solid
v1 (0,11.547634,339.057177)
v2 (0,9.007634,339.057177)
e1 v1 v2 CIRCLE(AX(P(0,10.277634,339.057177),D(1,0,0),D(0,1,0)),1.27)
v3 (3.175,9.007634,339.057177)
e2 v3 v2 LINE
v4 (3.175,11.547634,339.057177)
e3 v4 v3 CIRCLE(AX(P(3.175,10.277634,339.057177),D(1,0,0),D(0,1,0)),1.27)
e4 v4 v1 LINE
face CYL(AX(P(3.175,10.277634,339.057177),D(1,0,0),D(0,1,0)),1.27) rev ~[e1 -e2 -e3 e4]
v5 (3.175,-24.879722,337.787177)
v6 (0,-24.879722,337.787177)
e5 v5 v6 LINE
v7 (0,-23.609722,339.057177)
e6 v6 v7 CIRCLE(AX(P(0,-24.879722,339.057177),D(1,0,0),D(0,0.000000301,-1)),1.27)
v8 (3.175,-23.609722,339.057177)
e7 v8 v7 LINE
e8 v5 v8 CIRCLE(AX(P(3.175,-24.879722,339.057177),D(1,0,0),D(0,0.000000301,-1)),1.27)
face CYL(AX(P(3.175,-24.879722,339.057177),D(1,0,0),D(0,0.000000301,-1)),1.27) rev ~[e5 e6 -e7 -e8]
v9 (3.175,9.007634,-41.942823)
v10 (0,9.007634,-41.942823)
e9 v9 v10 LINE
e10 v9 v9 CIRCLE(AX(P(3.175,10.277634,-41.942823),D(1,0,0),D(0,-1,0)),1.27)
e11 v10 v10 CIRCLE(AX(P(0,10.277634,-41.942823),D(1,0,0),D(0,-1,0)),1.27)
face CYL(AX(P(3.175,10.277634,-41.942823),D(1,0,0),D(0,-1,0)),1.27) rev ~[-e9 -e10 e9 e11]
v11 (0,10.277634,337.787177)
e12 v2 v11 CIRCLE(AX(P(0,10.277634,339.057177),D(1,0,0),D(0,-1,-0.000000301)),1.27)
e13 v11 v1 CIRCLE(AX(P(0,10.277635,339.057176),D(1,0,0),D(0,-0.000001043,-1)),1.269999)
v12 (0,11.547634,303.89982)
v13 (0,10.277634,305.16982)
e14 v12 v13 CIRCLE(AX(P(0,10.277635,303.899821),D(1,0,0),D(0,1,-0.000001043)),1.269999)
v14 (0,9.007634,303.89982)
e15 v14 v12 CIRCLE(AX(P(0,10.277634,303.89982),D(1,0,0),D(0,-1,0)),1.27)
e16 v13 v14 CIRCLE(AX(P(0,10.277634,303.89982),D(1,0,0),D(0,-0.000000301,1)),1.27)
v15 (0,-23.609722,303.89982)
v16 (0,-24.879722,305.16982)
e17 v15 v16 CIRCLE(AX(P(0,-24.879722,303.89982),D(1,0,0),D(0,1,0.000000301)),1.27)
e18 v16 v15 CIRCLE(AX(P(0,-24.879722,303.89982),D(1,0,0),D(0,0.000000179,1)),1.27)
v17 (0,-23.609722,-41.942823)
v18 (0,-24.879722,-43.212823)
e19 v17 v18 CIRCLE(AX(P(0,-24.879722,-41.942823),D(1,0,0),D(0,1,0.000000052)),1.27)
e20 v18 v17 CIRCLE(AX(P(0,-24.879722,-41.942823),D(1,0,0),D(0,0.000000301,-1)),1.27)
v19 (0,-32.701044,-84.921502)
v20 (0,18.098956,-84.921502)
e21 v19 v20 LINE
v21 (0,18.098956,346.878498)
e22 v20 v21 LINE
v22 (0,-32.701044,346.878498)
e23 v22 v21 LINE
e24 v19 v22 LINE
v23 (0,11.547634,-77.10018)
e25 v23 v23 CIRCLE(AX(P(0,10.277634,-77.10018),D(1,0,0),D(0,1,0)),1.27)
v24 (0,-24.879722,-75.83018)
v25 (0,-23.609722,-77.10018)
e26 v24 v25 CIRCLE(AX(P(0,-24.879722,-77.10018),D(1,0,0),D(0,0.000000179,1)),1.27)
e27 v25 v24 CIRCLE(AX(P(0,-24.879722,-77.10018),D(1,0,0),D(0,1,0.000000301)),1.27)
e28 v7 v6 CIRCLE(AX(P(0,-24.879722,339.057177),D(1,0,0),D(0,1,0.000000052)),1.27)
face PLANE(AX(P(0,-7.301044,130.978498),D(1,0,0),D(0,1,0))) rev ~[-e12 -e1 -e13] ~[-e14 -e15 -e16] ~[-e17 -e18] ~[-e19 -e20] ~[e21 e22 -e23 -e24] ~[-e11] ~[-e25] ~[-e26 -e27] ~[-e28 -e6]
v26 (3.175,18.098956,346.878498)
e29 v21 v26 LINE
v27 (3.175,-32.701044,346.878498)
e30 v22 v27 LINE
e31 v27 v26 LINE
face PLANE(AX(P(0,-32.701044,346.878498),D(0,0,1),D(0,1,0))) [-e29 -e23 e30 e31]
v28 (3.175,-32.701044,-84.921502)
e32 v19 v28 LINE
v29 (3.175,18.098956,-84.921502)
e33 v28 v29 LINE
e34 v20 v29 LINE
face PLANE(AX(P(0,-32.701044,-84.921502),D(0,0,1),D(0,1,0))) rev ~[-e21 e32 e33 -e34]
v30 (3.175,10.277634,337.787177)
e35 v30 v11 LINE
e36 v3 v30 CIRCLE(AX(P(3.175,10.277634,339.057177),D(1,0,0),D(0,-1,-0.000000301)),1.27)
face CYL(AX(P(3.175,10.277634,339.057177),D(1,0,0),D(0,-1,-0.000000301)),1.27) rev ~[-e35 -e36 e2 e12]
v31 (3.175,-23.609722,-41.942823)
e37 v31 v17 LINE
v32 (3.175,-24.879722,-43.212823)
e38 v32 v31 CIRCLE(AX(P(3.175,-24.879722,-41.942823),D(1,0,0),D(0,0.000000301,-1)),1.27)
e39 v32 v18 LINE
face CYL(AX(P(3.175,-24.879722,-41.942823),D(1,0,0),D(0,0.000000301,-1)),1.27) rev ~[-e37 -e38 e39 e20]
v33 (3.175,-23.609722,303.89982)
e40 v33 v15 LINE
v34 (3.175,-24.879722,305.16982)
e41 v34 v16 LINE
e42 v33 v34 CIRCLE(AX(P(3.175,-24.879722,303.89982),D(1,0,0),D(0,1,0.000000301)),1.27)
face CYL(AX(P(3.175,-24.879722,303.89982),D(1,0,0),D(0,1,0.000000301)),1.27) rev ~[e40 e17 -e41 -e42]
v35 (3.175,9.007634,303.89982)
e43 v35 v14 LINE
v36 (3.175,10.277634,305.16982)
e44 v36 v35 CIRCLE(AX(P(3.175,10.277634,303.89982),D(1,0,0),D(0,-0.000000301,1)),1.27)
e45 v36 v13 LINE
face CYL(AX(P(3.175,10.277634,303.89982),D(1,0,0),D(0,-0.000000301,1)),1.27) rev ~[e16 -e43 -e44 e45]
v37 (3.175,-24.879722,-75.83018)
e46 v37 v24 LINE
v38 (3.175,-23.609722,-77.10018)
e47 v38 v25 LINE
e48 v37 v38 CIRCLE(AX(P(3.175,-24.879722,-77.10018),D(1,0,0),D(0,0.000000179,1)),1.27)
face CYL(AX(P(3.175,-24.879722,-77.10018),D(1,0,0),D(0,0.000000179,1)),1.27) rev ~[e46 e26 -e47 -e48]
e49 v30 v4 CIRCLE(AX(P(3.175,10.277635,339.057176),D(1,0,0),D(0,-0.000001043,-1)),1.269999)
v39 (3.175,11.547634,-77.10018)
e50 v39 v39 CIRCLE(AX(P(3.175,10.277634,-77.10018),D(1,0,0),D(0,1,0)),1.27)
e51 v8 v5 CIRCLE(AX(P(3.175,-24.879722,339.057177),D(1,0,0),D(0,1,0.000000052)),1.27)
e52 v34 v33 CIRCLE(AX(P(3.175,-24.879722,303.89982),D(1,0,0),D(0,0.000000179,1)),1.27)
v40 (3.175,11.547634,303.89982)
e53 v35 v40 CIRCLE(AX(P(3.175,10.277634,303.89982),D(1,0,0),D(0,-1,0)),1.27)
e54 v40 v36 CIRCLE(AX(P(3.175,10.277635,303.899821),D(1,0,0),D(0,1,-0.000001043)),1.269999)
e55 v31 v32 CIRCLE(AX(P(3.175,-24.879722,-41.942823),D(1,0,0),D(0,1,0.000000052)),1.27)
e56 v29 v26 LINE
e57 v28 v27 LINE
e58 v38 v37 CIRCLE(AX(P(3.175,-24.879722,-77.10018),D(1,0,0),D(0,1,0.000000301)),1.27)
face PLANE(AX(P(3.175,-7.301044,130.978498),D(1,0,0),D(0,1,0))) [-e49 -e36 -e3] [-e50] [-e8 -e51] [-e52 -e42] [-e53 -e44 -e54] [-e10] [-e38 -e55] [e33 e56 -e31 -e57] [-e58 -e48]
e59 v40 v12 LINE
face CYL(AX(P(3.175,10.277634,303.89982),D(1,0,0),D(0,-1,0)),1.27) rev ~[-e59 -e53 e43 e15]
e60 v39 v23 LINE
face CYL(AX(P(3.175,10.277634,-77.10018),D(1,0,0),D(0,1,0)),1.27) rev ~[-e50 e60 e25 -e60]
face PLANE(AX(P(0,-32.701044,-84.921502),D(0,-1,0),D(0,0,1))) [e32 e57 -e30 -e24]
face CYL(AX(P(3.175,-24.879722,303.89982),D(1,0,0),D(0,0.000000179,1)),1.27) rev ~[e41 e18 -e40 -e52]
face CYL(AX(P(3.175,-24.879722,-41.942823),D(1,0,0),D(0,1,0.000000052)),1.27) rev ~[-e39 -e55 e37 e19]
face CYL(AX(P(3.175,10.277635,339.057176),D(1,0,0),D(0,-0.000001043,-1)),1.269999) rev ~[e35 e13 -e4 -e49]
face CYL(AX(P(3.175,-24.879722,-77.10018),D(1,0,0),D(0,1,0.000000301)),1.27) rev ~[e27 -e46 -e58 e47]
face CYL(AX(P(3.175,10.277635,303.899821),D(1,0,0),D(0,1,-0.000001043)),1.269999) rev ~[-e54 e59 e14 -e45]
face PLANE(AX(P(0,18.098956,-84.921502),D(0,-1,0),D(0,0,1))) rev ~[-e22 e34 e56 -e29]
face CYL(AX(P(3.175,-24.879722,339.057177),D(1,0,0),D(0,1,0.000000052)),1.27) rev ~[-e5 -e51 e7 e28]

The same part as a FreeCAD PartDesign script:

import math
import FreeCAD as App
import Part
import Sketcher
from FreeCAD import Vector
Q = App.Units.Quantity

doc = App.newDocument("Part")
params = doc.addObject("Spreadsheet::Sheet", "Params")
for row, (alias, value) in enumerate([
    ("sketch1_width", "2 in"),
    ("sketch1_height", "17 in"),
    ("pad1_length", "0.125 in"),
    ("sketch2_diameter", "0.1 in"),
], start=1):
    params.set(f"A{row}", alias)
    params.set(f"B{row}", "=" + value)
    params.setAlias(f"B{row}", alias)

body = doc.addObject("PartDesign::Body", "Body")

# Sketch on YZ plane
sketch1 = doc.addObject("Sketcher::SketchObject", "Sketch")
body.addObject(sketch1)
sketch1.AttachmentSupport = (doc.YZ_Plane, [""])
sketch1.MapMode = "FlatFace"
sketch1.addGeometry([
    Part.LineSegment(Vector(-32.701044, 346.878498, 0), Vector(-32.701044, -84.921502, 0)),
    Part.LineSegment(Vector(-32.701044, -84.921502, 0), Vector(18.098956, -84.921502, 0)),
    Part.LineSegment(Vector(18.098956, -84.921502, 0), Vector(18.098956, 346.878498, 0)),
    Part.LineSegment(Vector(18.098956, 346.878498, 0), Vector(-32.701044, 346.878498, 0)),
], False)
sketch1.addConstraint([
    Sketcher.Constraint("Coincident", 0, 2, 1, 1),
    Sketcher.Constraint("Coincident", 1, 2, 2, 1),
    Sketcher.Constraint("Coincident", 2, 2, 3, 1),
    Sketcher.Constraint("Coincident", 3, 2, 0, 1),
    Sketcher.Constraint("Vertical", 0),
    Sketcher.Constraint("Horizontal", 1),
    Sketcher.Constraint("Vertical", 2),
    Sketcher.Constraint("Horizontal", 3),
    Sketcher.Constraint("DistanceX", 1, 1, 1, 2, Q("2 in")),
    Sketcher.Constraint("DistanceY", 0, 2, 0, 1, Q("17 in")),
    Sketcher.Constraint("DistanceY", -1, 1, 2, 2, Q("346.878498 mm")),
    Sketcher.Constraint("DistanceX", 0, 2, -1, 1, Q("32.701044 mm")),
])
sketch1.setExpression("Constraints[8]", "Params.sketch1_width")
sketch1.setExpression("Constraints[9]", "Params.sketch1_height")
pad1 = doc.addObject("PartDesign::Pad", "Pad")
body.addObject(pad1)
pad1.Profile = sketch1
pad1.setExpression("Length", "Params.pad1_length")

# Sketch on YZ plane
sketch2 = doc.addObject("Sketcher::SketchObject", "Sketch001")
body.addObject(sketch2)
sketch2.AttachmentSupport = (doc.YZ_Plane, [""])
sketch2.MapMode = "FlatFace"
sketch2.AttachmentOffset = App.Placement(Vector(0, 0, 0.125 * 25.4), App.Rotation())
sketch2.addGeometry([
    Part.ArcOfCircle(Part.Circle(Vector(-24.879722, 303.89982, 0), Vector(0, 0, 1), 1.27), math.radians(89.99999), math.radians(360.00001)),  # 0
    Part.ArcOfCircle(Part.Circle(Vector(-24.879722, 303.89982, 0), Vector(0, 0, 1), 1.27), math.radians(0.000017), math.radians(89.999983)),  # 1
    Part.ArcOfCircle(Part.Circle(Vector(-24.879722, 339.057177, 0), Vector(0, 0, 1), 1.27), math.radians(-89.999983), math.radians(-0.000017)),  # 2
    Part.ArcOfCircle(Part.Circle(Vector(-24.879722, 339.057177, 0), Vector(0, 0, 1), 1.27), math.radians(0.000003), math.radians(269.999997)),  # 3
    Part.ArcOfCircle(Part.Circle(Vector(10.277634, 339.057177, 0), Vector(0, 0, 1), 1.27), math.radians(0), math.radians(180)),  # 4
    Part.ArcOfCircle(Part.Circle(Vector(10.277634, 339.057177, 0), Vector(0, 0, 1), 1.27), math.radians(-179.999983), math.radians(-90.000017)),  # 5
    Part.ArcOfCircle(Part.Circle(Vector(10.277635, 339.057176, 0), Vector(0, 0, 1), 1.269999), math.radians(-90.00006), math.radians(0.00006)),  # 6
    Part.ArcOfCircle(Part.Circle(Vector(10.277635, 303.899821, 0), Vector(0, 0, 1), 1.269999), math.radians(-0.00006), math.radians(90.00006)),  # 7
    Part.ArcOfCircle(Part.Circle(Vector(10.277634, 303.89982, 0), Vector(0, 0, 1), 1.27), math.radians(90.000017), math.radians(179.999983)),  # 8
    Part.ArcOfCircle(Part.Circle(Vector(10.277634, 303.89982, 0), Vector(0, 0, 1), 1.27), math.radians(180), math.radians(360)),  # 9
    Part.ArcOfCircle(Part.Circle(Vector(-24.879722, -77.10018, 0), Vector(0, 0, 1), 1.27), math.radians(0.000017), math.radians(89.999983)),  # 10
    Part.ArcOfCircle(Part.Circle(Vector(-24.879722, -77.10018, 0), Vector(0, 0, 1), 1.27), math.radians(89.99999), math.radians(360.00001)),  # 11
    Part.ArcOfCircle(Part.Circle(Vector(-24.879722, -41.942823, 0), Vector(0, 0, 1), 1.27), math.radians(-89.999983), math.radians(-0.000017)),  # 12
    Part.ArcOfCircle(Part.Circle(Vector(-24.879722, -41.942823, 0), Vector(0, 0, 1), 1.27), math.radians(0.000003), math.radians(269.999997)),  # 13
    Part.Circle(Vector(10.277634, -41.942823, 0), Vector(0, 0, 1), 1.27),  # 14
    Part.Circle(Vector(10.277634, -77.10018, 0), Vector(0, 0, 1), 1.27),  # 15
], False)
sketch2.addConstraint([
    Sketcher.Constraint("Tangent", 0, 1, 1, 2),
    Sketcher.Constraint("Coincident", 1, 1, 0, 2),
    Sketcher.Constraint("Tangent", 2, 1, 3, 2),
    Sketcher.Constraint("Coincident", 3, 1, 2, 2),
    Sketcher.Constraint("Tangent", 4, 2, 5, 1),
    Sketcher.Constraint("Tangent", 5, 2, 6, 1),
    Sketcher.Constraint("Tangent", 6, 2, 4, 1),
    Sketcher.Constraint("Tangent", 7, 2, 8, 1),
    Sketcher.Constraint("Tangent", 8, 2, 9, 1),
    Sketcher.Constraint("Tangent", 9, 2, 7, 1),
    Sketcher.Constraint("Tangent", 10, 1, 11, 2),
    Sketcher.Constraint("Coincident", 11, 1, 10, 2),
    Sketcher.Constraint("Tangent", 12, 1, 13, 2),
    Sketcher.Constraint("Coincident", 13, 1, 12, 2),
    Sketcher.Constraint("Equal", 1, 2),
    Sketcher.Constraint("Equal", 3, 4),
    Sketcher.Constraint("Equal", 6, 7),
    Sketcher.Constraint("Equal", 9, 10),
    Sketcher.Constraint("Equal", 11, 12),
    Sketcher.Constraint("Equal", 13, 14),
    Sketcher.Constraint("Equal", 14, 15),
    Sketcher.Constraint("Horizontal", 3, 3, 4, 3),
    Sketcher.Constraint("Horizontal", 1, 3, 7, 3),
    Sketcher.Constraint("Horizontal", 13, 3, 14, 3),
    Sketcher.Constraint("Horizontal", 11, 3, 15, 3),
    Sketcher.Constraint("Horizontal", 9, 3, 1, 1),
    Sketcher.Constraint("Horizontal", 6, 3, 3, 1),
    Sketcher.Constraint("Horizontal", 3, 1, 4, 2),
    Sketcher.Constraint("Horizontal", 4, 2, 6, 2),
    Sketcher.Constraint("Horizontal", 1, 1, 8, 2),
    Sketcher.Constraint("Horizontal", 8, 2, 9, 2),
    Sketcher.Constraint("Horizontal", 15, 3, 10, 1),
    Sketcher.Constraint("Horizontal", 14, 3, 13, 1),
    Sketcher.Constraint("Vertical", 1, 3, 2, 3),
    Sketcher.Constraint("Vertical", 6, 3, 7, 3),
    Sketcher.Constraint("Vertical", 3, 3, 10, 3),
    Sketcher.Constraint("Vertical", 11, 3, 12, 3),
    Sketcher.Constraint("Vertical", 9, 3, 14, 3),
    Sketcher.Constraint("Vertical", 14, 3, 15, 3),
    Sketcher.Constraint("Vertical", 13, 3, 0, 1),
    Sketcher.Constraint("Vertical", 0, 1, 2, 1),
    Sketcher.Constraint("Vertical", 15, 3, 5, 2),
    Sketcher.Constraint("Vertical", 5, 2, 7, 2),
    Sketcher.Constraint("Vertical", 2, 1, 11, 1),
    Sketcher.Constraint("Vertical", 11, 1, 12, 1),
    Sketcher.Constraint("Diameter", 14, Q("0.1 in")),
    Sketcher.Constraint("DistanceY", 10, 3, 1, 3, Q("15 in")),
    Sketcher.Constraint("DistanceY", -1, 1, 0, 3, Q("303.89982 mm")),
    Sketcher.Constraint("DistanceX", 3, 3, -1, 1, Q("24.879722 mm")),
    Sketcher.Constraint("DistanceY", -1, 1, 2, 3, Q("339.057177 mm")),
    Sketcher.Constraint("DistanceX", -1, 1, 4, 3, Q("10.277634 mm")),
    Sketcher.Constraint("DistanceY", 12, 3, -1, 1, Q("41.942823 mm")),
])
sketch2.setExpression("Constraints[45]", "Params.sketch2_diameter")
pocket1 = doc.addObject("PartDesign::Pocket", "Pocket")
body.addObject(pocket1)
pocket1.Profile = sketch2
pocket1.Type = "ThroughAll"

doc.recompute()
